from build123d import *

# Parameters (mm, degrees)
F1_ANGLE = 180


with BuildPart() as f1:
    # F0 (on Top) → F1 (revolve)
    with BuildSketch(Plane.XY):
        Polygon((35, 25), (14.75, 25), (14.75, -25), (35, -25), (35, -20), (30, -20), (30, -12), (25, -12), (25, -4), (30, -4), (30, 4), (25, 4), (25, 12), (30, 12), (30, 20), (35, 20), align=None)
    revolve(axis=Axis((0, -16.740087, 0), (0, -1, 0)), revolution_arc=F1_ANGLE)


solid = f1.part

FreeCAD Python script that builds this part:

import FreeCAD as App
import Part
import Sketcher

V = App.Vector


def add_polygon(sketch, points):
    """Adds a closed chain of lines whose ends are joined by coincident constraints."""
    first, n = sketch.GeometryCount, len(points)
    for a, b in zip(points, points[1:] + points[:1]):
        sketch.addGeometry(Part.LineSegment(App.Vector(*a, 0), App.Vector(*b, 0)), False)
    for i in range(n):
        sketch.addConstraint(Sketcher.Constraint("Coincident", first + i, 2, first + (i + 1) % n, 1))

doc = App.newDocument("Part")
body = doc.addObject("PartDesign::Body", "Body")

sketch1 = doc.addObject("Sketcher::SketchObject", "Sketch")
body.addObject(sketch1)
sketch1.AttachmentSupport = (doc.XY_Plane, [""])
sketch1.MapMode = "FlatFace"
add_polygon(sketch1, [(35, 25), (15, 25), (15, -25), (35, -25), (35, -20), (30, -20), (30, -12), (25, -12), (25, -4), (30, -4), (30, 4), (25, 4), (25, 12), (30, 12), (30, 20), (35, 20)])
sketch1.addConstraint(Sketcher.Constraint("Horizontal", 0))
sketch1.addConstraint(Sketcher.Constraint("Vertical", 1))
sketch1.addConstraint(Sketcher.Constraint("Horizontal", 2))
sketch1.addConstraint(Sketcher.Constraint("Vertical", 3))
sketch1.addConstraint(Sketcher.Constraint("Horizontal", 4))
sketch1.addConstraint(Sketcher.Constraint("Vertical", 5))
sketch1.addConstraint(Sketcher.Constraint("Horizontal", 6))
sketch1.addConstraint(Sketcher.Constraint("Vertical", 7))
sketch1.addConstraint(Sketcher.Constraint("Horizontal", 8))
sketch1.addConstraint(Sketcher.Constraint("Vertical", 9))
sketch1.addConstraint(Sketcher.Constraint("Horizontal", 10))
sketch1.addConstraint(Sketcher.Constraint("Vertical", 11))
sketch1.addConstraint(Sketcher.Constraint("Horizontal", 12))
sketch1.addConstraint(Sketcher.Constraint("Vertical", 13))
sketch1.addConstraint(Sketcher.Constraint("Horizontal", 14))
sketch1.addConstraint(Sketcher.Constraint("Vertical", 15))
sketch1.addConstraint(Sketcher.Constraint("Symmetric", 7, 2, 10, 2, -1))
sketch1.addConstraint(Sketcher.Constraint("Symmetric", 5, 2, 12, 2, -1))
sketch1.addConstraint(Sketcher.Constraint("Symmetric", 3, 2, 14, 2, -1))
sketch1.addConstraint(Sketcher.Constraint("Vertical", 5, 2, 8, 2))
sketch1.addConstraint(Sketcher.Constraint("Equal", 4, 6))
sketch1.addConstraint(Sketcher.Constraint("Equal", 14, 3))
sketch1.addConstraint(Sketcher.Constraint("Equal", 5, 7))
sketch1.addConstraint(Sketcher.Constraint("Equal", 7, 9))
sketch1.addConstraint(Sketcher.Constraint("Equal", 3, 15))
sketch1.addConstraint(Sketcher.Constraint("DistanceX", 4, 2, 4, 1, 5.0))
sketch1.addConstraint(Sketcher.Constraint("DistanceY", 1, 2, 1, 1, 50.0))
sketch1.addConstraint(Sketcher.Constraint("DistanceX", -1, 1, 2, 2, 35.0))
sketch1.addConstraint(Sketcher.Constraint("DistanceX", 0, 2, 0, 1, 20.25))
revolution = doc.addObject("PartDesign::Revolution", "Revolution")
body.addObject(revolution)
revolution.Profile = sketch1
revolution.ReferenceAxis = (sketch1, ["V_Axis"])
revolution.Angle = 180
revolution.Reversed = True

doc.recompute()
